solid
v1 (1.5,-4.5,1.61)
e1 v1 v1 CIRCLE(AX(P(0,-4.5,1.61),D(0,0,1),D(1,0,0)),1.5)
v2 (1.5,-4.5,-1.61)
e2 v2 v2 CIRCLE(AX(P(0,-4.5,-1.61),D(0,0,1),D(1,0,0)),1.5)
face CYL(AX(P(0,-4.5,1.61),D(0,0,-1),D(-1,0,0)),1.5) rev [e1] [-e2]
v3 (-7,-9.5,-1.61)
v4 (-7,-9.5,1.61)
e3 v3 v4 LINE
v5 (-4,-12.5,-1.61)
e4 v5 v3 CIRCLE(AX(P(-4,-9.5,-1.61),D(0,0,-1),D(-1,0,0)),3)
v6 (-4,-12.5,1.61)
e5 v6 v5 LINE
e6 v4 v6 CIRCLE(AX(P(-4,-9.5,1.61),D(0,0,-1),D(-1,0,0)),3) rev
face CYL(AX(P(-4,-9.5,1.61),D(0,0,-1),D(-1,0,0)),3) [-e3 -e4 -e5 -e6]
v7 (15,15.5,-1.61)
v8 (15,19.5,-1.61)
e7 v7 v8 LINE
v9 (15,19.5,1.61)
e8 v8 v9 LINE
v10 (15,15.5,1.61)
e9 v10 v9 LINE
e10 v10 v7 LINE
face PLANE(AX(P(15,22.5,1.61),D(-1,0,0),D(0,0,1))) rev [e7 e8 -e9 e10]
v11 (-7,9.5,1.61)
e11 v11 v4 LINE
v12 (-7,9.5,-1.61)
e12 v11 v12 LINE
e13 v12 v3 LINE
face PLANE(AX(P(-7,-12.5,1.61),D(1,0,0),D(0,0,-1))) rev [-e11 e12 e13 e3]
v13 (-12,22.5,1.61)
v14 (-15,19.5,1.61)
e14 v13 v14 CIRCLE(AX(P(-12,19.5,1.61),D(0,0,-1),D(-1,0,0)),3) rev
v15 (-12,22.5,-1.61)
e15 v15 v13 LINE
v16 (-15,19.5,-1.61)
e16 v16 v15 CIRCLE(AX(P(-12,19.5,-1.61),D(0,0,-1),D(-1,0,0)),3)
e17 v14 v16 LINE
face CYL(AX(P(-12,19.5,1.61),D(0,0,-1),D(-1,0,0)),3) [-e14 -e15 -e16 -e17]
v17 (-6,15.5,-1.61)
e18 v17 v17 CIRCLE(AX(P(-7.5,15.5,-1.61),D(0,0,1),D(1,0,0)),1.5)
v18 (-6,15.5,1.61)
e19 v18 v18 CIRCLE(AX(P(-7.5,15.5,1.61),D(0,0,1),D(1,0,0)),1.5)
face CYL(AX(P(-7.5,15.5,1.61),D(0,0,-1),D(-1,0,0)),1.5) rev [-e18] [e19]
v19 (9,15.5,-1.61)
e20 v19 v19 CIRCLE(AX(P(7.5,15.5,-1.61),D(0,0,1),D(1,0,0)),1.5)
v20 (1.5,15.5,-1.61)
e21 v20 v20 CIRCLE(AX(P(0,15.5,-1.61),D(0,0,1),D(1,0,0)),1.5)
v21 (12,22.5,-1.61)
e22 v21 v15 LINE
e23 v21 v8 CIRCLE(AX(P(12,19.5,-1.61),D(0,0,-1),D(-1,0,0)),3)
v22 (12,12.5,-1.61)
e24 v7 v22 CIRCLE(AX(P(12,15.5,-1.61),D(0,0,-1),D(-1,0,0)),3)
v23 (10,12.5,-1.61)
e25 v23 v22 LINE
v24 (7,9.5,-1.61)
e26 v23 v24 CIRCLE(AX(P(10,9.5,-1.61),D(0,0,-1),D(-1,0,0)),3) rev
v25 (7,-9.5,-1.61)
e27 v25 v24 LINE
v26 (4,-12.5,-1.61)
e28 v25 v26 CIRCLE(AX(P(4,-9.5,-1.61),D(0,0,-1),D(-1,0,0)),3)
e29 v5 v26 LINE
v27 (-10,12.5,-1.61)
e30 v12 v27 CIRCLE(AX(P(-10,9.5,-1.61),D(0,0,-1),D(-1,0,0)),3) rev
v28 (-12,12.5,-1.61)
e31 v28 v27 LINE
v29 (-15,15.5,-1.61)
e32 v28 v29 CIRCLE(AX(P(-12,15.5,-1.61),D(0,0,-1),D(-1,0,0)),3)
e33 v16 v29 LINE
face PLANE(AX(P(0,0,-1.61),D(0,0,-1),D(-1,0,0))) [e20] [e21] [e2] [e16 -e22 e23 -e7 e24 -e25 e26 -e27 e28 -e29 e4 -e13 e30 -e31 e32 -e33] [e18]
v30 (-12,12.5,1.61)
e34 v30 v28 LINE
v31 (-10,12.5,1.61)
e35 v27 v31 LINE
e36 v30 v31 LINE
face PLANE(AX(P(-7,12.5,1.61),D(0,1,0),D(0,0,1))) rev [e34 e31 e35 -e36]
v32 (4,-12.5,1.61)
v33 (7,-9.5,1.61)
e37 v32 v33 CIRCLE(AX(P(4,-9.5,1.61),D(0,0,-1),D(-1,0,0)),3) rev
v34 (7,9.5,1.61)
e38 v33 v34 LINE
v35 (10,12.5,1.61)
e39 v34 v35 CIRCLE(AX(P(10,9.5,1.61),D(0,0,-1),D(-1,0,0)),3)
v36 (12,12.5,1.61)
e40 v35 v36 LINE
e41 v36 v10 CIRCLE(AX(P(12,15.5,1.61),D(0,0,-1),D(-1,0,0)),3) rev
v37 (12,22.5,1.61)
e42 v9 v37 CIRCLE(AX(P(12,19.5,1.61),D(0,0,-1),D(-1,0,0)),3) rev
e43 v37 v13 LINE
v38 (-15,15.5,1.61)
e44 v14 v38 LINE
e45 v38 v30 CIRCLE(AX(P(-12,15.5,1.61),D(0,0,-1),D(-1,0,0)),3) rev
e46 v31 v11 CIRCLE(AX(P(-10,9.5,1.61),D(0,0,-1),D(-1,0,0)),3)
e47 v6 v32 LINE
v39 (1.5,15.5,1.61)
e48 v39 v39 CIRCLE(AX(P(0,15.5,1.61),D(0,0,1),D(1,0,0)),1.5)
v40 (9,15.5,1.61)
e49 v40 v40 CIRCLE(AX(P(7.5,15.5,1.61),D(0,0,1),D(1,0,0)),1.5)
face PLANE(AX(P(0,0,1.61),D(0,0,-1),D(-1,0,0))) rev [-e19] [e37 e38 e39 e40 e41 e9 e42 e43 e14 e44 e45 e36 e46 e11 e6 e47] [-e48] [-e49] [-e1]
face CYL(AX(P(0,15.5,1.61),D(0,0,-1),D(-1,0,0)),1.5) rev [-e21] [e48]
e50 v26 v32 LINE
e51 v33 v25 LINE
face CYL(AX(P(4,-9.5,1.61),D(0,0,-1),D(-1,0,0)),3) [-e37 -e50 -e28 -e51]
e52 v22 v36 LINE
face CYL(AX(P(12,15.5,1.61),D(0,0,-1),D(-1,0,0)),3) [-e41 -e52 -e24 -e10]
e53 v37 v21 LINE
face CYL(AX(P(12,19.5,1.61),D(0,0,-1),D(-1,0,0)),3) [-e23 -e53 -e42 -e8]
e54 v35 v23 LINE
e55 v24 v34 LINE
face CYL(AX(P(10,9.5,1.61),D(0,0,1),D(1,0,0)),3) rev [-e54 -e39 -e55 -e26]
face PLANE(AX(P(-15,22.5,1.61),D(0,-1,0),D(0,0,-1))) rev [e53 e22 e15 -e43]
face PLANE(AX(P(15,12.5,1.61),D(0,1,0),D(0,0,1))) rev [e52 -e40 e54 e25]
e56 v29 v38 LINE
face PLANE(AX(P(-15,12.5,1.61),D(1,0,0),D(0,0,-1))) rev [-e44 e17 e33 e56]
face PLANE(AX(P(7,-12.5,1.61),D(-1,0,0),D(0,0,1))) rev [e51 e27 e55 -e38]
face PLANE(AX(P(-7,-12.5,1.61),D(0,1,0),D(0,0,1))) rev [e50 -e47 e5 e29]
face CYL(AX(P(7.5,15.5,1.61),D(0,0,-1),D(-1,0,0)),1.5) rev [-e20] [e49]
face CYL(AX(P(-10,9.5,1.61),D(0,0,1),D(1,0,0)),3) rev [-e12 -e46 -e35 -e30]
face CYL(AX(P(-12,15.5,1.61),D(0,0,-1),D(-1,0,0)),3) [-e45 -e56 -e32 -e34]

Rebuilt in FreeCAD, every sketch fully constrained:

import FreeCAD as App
import Part
import Sketcher
Q = App.Units.Quantity


def edges_at(feature, points):
    """Names of the edges that pass closest to the given points."""
    edges = feature.Shape.Edges
    near = lambda p: min(range(len(edges)), key=lambda i: edges[i].distToShape(Part.Vertex(*p))[0])
    return sorted({f"Edge{near(p) + 1}" for p in points})

doc = App.newDocument("Part")
body = doc.addObject("PartDesign::Body", "Body")

sketch1 = body.newObject("Sketcher::SketchObject", "Sketch")
sketch1.AttachmentSupport = (doc.getObject("XY_Plane"), [""])
sketch1.MapMode = "FlatFace"
sketch1.addGeometry([
    Part.LineSegment(App.Vector(-15, 12.5, 0), App.Vector(-7, 12.5, 0)),
    Part.LineSegment(App.Vector(-7, 12.5, 0), App.Vector(-7, -12.5, 0)),
    Part.LineSegment(App.Vector(-7, -12.5, 0), App.Vector(7, -12.5, 0)),
    Part.LineSegment(App.Vector(7, -12.5, 0), App.Vector(7, 12.5, 0)),
    Part.LineSegment(App.Vector(7, 12.5, 0), App.Vector(15, 12.5, 0)),
    Part.LineSegment(App.Vector(15, 12.5, 0), App.Vector(15, 22.5, 0)),
    Part.LineSegment(App.Vector(15, 22.5, 0), App.Vector(-15, 22.5, 0)),
    Part.LineSegment(App.Vector(-15, 22.5, 0), App.Vector(-15, 12.5, 0)),
    Part.Circle(App.Vector(0, -4.5, 0), App.Vector(0, 0, 1), 1.5),
    Part.Circle(App.Vector(7.5, 15.5, 0), App.Vector(0, 0, 1), 1.5),
    Part.Circle(App.Vector(0, 15.5, 0), App.Vector(0, 0, 1), 1.5),
    Part.Circle(App.Vector(-7.5, 15.5, 0), App.Vector(0, 0, 1), 1.5),
], False)
sketch1.addConstraint([
    Sketcher.Constraint("Coincident", 0, 2, 1, 1),
    Sketcher.Constraint("Coincident", 1, 2, 2, 1),
    Sketcher.Constraint("Coincident", 2, 2, 3, 1),
    Sketcher.Constraint("Coincident", 3, 2, 4, 1),
    Sketcher.Constraint("Coincident", 4, 2, 5, 1),
    Sketcher.Constraint("Coincident", 5, 2, 6, 1),
    Sketcher.Constraint("Coincident", 6, 2, 7, 1),
    Sketcher.Constraint("Coincident", 7, 2, 0, 1),
    Sketcher.Constraint("Horizontal", 0),
    Sketcher.Constraint("Vertical", 1),
    Sketcher.Constraint("Horizontal", 2),
    Sketcher.Constraint("Vertical", 3),
    Sketcher.Constraint("Horizontal", 4),
    Sketcher.Constraint("Vertical", 5),
    Sketcher.Constraint("Horizontal", 6),
    Sketcher.Constraint("Vertical", 7),
    Sketcher.Constraint("Equal", 8, 9),
    Sketcher.Constraint("Equal", 9, 10),
    Sketcher.Constraint("Equal", 10, 11),
    Sketcher.Constraint("Symmetric", 0, 2, 2, 2, -1, 1),
    Sketcher.Constraint("Symmetric", 9, 3, 11, 3, -2),
    Sketcher.Constraint("Symmetric", 4, 2, 7, 2, -2),
    Sketcher.Constraint("PointOnObject", 8, 3, -2),
    Sketcher.Constraint("PointOnObject", 10, 3, -2),
    Sketcher.Constraint("Horizontal", 9, 3, 10, 3),
    Sketcher.Constraint("Diameter", 8, Q("3 mm")),
    Sketcher.Constraint("DistanceX", 0, 1, 0, 2, Q("8 mm")),
    Sketcher.Constraint("DistanceX", 2, 1, 2, 2, Q("14 mm")),
    Sketcher.Constraint("DistanceY", 1, 2, 1, 1, Q("25 mm")),
    Sketcher.Constraint("DistanceY", 5, 1, 5, 2, Q("10 mm")),
    Sketcher.Constraint("DistanceY", 8, 3, 9, 3, Q("20 mm")),
    Sketcher.Constraint("DistanceX", 11, 3, 9, 3, Q("15 mm")),
    Sketcher.Constraint("DistanceY", 0, 2, 11, 3, Q("3 mm")),
])
pad1 = body.newObject("PartDesign::Pad", "Pad")
pad1.Profile = sketch1
pad1.Length = 3.22
pad1.Midplane = True
doc.recompute()

fillet = body.newObject("PartDesign::Fillet", "Fillet")
fillet.Base = (pad1, edges_at(pad1, [
    (7, 12.5, 0),
    (7, -12.5, 0),
    (-7, -12.5, 0),
    (-7, 12.5, 0),
    (-15, 12.5, 0),
    (-15, 22.5, 0),
    (15, 22.5, 0),
    (15, 12.5, 0),
]))
fillet.Radius = 3

doc.recompute()
